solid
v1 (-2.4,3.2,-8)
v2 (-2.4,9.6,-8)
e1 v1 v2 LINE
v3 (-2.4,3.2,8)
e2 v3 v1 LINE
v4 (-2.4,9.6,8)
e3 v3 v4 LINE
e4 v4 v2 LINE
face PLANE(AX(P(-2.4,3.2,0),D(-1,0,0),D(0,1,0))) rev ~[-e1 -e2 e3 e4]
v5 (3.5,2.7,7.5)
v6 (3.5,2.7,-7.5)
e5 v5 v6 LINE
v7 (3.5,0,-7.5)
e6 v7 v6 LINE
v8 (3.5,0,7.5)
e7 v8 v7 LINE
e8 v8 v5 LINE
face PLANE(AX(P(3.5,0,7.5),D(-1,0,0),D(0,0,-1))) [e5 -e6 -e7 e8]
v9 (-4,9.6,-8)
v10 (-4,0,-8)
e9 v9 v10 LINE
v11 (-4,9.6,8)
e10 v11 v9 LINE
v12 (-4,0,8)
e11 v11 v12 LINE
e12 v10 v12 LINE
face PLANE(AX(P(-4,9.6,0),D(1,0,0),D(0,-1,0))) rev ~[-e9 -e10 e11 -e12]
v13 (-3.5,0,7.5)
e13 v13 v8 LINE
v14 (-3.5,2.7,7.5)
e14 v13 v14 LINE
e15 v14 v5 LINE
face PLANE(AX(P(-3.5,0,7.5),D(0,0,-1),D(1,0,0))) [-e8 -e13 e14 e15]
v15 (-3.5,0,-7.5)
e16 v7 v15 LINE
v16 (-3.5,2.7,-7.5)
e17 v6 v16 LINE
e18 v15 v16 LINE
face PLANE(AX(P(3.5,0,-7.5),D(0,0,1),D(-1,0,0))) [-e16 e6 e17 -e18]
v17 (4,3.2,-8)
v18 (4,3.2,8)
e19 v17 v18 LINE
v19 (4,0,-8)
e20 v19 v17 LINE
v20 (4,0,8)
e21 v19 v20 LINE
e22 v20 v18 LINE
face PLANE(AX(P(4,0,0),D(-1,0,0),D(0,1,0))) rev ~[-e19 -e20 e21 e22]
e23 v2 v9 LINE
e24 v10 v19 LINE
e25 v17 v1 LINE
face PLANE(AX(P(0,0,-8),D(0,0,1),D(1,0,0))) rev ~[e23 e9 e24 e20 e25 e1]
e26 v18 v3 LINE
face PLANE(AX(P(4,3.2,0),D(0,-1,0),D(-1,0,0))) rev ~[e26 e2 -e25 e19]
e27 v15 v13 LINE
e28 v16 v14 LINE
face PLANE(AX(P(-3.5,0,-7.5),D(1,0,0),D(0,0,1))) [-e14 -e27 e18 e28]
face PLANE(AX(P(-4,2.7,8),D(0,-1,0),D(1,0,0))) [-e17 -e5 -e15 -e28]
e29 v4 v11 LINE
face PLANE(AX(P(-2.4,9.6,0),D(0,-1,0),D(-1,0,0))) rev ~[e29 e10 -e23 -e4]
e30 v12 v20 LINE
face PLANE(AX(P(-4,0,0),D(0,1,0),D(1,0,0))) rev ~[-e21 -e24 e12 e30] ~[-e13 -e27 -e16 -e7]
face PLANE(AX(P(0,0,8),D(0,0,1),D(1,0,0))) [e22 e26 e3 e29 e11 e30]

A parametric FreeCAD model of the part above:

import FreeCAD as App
import Part
import Sketcher
Q = App.Units.Quantity


def add_polygon(sketch, points):
    """Adds a closed chain of lines whose ends are joined by coincident constraints."""
    first, n = sketch.GeometryCount, len(points)
    for a, b in zip(points, points[1:] + points[:1]):
        sketch.addGeometry(Part.LineSegment(App.Vector(*a, 0), App.Vector(*b, 0)), False)
    for i in range(n):
        sketch.addConstraint(Sketcher.Constraint("Coincident", first + i, 2, first + (i + 1) % n, 1))

doc = App.newDocument("Part")
params = doc.addObject("Spreadsheet::Sheet", "Params")
for row, (alias, value) in enumerate([
    ("sketch1_width", "8 mm"),
    ("sketch1_width2", "1.6 mm"),
    ("sketch1_height", "9.6 mm"),
    ("pad1_length", "16 mm"),
    ("sketch2_width", "7 mm"),
    ("sketch2_height", "15 mm"),
    ("pocket1_length", "2.7 mm"),
], start=1):
    params.set(f"A{row}", alias)
    params.set(f"B{row}", "=" + value)
    params.setAlias(f"B{row}", alias)

body = doc.addObject("PartDesign::Body", "Body")

# Sketch on XY plane
sketch1 = doc.addObject("Sketcher::SketchObject", "Sketch")
body.addObject(sketch1)
sketch1.AttachmentSupport = (doc.XY_Plane, [""])
sketch1.MapMode = "FlatFace"
add_polygon(sketch1, [(-4, 9.6), (-4, 0), (4, 0), (4, 3.2), (-2.4, 3.2), (-2.4, 9.6)])  # lines 0-5
sketch1.addConstraint([
    Sketcher.Constraint("Vertical", 0),
    Sketcher.Constraint("Horizontal", 1),
    Sketcher.Constraint("Vertical", 2),
    Sketcher.Constraint("Horizontal", 3),
    Sketcher.Constraint("Vertical", 4),
    Sketcher.Constraint("Horizontal", 5),
    Sketcher.Constraint("Symmetric", 0, 2, 1, 2, -1, 1),
    Sketcher.Constraint("Equal", 3, 4),
    Sketcher.Constraint("DistanceX", 1, 1, 1, 2, Q("8 mm")),
    Sketcher.Constraint("DistanceX", 5, 2, 5, 1, Q("1.6 mm")),
    Sketcher.Constraint("DistanceY", 0, 2, 0, 1, Q("9.6 mm")),
])
sketch1.setExpression("Constraints[14]", "Params.sketch1_width")
sketch1.setExpression("Constraints[15]", "Params.sketch1_width2")
sketch1.setExpression("Constraints[16]", "Params.sketch1_height")
pad1 = doc.addObject("PartDesign::Pad", "Pad")
body.addObject(pad1)
pad1.Profile = sketch1
pad1.setExpression("Length", "Params.pad1_length")
pad1.Midplane = True

# Sketch on XZ plane
sketch2 = doc.addObject("Sketcher::SketchObject", "Sketch001")
body.addObject(sketch2)
sketch2.AttachmentSupport = (doc.XZ_Plane, [""])
sketch2.MapMode = "FlatFace"
add_polygon(sketch2, [(4, 8), (-4, 8), (-4, -8), (4, -8)])  # lines 0-3
sketch2.addConstraint([
    Sketcher.Constraint("Horizontal", 0),
    Sketcher.Constraint("Vertical", 1),
    Sketcher.Constraint("Horizontal", 2),
    Sketcher.Constraint("Vertical", 3),
    Sketcher.Constraint("Symmetric", 0, 2, 2, 2, -1, 1),
    Sketcher.Constraint("DistanceX", 0, 2, 0, 1, Q("7 mm")),
    Sketcher.Constraint("DistanceY", 1, 2, 1, 1, Q("15 mm")),
])
sketch2.setExpression("Constraints[9]", "Params.sketch2_width")
sketch2.setExpression("Constraints[10]", "Params.sketch2_height")
pocket1 = doc.addObject("PartDesign::Pocket", "Pocket")
body.addObject(pocket1)
pocket1.Profile = sketch2
pocket1.setExpression("Length", "Params.pocket1_length")

doc.recompute()
